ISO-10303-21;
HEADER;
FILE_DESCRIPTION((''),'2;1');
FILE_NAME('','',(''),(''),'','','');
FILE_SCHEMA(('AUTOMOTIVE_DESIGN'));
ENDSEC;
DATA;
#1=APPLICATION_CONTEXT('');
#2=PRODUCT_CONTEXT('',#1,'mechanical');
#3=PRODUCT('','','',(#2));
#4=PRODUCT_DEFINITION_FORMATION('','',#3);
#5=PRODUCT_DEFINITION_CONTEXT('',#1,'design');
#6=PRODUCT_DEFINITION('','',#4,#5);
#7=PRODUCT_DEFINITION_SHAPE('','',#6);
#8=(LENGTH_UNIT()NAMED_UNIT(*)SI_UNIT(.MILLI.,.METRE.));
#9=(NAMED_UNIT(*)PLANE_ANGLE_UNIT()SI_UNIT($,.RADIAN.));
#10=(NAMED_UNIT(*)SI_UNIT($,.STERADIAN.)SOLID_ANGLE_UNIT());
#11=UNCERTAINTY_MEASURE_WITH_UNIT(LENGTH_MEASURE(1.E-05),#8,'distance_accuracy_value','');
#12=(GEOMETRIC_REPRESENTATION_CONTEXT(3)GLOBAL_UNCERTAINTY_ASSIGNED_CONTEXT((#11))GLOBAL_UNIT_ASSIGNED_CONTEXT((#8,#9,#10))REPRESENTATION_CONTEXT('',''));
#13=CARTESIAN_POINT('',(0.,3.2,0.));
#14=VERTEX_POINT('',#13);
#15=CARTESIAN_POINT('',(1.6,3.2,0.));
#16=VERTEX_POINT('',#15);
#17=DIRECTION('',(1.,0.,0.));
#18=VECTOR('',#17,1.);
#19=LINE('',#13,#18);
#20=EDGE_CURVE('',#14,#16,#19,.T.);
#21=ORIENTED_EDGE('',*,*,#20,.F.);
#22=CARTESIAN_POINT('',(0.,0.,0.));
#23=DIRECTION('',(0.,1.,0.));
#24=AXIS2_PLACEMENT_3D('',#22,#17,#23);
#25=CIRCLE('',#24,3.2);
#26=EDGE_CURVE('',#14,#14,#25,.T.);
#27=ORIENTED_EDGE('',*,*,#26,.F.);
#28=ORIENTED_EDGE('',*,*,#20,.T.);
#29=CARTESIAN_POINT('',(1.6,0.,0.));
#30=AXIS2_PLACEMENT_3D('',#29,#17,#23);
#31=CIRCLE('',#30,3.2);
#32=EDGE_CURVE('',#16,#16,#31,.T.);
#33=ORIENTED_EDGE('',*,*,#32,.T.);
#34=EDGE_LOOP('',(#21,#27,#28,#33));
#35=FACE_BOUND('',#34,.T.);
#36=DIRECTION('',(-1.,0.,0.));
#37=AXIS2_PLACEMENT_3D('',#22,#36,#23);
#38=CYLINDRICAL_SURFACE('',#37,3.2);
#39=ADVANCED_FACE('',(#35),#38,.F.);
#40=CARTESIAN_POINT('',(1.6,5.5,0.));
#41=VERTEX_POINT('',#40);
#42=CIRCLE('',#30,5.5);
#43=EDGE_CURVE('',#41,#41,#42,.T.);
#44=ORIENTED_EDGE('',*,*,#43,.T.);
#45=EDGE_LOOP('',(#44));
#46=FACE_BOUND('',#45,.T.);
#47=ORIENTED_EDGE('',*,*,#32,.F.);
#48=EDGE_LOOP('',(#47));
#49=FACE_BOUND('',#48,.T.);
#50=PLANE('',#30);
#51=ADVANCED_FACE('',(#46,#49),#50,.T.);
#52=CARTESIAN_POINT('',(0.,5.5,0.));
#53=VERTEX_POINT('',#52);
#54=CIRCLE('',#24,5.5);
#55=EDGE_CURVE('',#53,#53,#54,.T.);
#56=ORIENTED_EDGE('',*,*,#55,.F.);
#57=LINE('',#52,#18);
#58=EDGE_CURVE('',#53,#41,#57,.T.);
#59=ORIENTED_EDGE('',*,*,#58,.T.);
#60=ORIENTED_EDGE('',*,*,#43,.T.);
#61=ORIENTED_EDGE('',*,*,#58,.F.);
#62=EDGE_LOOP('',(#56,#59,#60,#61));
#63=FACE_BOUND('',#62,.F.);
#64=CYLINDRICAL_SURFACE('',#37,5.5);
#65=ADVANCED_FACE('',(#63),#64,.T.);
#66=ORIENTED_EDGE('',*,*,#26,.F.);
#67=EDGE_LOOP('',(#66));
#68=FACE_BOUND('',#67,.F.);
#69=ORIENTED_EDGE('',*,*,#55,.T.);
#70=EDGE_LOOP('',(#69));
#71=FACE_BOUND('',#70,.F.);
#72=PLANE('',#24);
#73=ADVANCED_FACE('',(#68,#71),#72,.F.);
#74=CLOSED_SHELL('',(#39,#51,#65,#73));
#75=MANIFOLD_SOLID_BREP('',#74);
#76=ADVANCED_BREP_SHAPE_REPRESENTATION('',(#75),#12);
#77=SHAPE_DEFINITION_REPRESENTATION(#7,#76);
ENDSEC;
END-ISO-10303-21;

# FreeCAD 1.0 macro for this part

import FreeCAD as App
import Part
import Sketcher
from FreeCAD import Vector

doc = App.newDocument("Part")
body = doc.addObject("PartDesign::Body", "Body")

sketch1 = body.newObject("Sketcher::SketchObject", "Sketch")
sketch1.AttachmentSupport = (doc.getObject("YZ_Plane"), [""])
sketch1.MapMode = "FlatFace"
sketch1.addGeometry([
    Part.Circle(Vector(0, 0, 0), Vector(0, 0, 1), 5.5),
    Part.Circle(Vector(0, 0, 0), Vector(0, 0, 1), 3.2),
], False)
sketch1.addConstraint([
    Sketcher.Constraint("Coincident", 0, 3, -1, 1),
    Sketcher.Constraint("Coincident", 1, 3, -1, 1),
    Sketcher.Constraint("Diameter", 0, 11.0),
    Sketcher.Constraint("Diameter", 1, 6.4),
])
pad1 = body.newObject("PartDesign::Pad", "Pad")
pad1.Profile = sketch1
pad1.Length = 1.6

doc.recompute()
